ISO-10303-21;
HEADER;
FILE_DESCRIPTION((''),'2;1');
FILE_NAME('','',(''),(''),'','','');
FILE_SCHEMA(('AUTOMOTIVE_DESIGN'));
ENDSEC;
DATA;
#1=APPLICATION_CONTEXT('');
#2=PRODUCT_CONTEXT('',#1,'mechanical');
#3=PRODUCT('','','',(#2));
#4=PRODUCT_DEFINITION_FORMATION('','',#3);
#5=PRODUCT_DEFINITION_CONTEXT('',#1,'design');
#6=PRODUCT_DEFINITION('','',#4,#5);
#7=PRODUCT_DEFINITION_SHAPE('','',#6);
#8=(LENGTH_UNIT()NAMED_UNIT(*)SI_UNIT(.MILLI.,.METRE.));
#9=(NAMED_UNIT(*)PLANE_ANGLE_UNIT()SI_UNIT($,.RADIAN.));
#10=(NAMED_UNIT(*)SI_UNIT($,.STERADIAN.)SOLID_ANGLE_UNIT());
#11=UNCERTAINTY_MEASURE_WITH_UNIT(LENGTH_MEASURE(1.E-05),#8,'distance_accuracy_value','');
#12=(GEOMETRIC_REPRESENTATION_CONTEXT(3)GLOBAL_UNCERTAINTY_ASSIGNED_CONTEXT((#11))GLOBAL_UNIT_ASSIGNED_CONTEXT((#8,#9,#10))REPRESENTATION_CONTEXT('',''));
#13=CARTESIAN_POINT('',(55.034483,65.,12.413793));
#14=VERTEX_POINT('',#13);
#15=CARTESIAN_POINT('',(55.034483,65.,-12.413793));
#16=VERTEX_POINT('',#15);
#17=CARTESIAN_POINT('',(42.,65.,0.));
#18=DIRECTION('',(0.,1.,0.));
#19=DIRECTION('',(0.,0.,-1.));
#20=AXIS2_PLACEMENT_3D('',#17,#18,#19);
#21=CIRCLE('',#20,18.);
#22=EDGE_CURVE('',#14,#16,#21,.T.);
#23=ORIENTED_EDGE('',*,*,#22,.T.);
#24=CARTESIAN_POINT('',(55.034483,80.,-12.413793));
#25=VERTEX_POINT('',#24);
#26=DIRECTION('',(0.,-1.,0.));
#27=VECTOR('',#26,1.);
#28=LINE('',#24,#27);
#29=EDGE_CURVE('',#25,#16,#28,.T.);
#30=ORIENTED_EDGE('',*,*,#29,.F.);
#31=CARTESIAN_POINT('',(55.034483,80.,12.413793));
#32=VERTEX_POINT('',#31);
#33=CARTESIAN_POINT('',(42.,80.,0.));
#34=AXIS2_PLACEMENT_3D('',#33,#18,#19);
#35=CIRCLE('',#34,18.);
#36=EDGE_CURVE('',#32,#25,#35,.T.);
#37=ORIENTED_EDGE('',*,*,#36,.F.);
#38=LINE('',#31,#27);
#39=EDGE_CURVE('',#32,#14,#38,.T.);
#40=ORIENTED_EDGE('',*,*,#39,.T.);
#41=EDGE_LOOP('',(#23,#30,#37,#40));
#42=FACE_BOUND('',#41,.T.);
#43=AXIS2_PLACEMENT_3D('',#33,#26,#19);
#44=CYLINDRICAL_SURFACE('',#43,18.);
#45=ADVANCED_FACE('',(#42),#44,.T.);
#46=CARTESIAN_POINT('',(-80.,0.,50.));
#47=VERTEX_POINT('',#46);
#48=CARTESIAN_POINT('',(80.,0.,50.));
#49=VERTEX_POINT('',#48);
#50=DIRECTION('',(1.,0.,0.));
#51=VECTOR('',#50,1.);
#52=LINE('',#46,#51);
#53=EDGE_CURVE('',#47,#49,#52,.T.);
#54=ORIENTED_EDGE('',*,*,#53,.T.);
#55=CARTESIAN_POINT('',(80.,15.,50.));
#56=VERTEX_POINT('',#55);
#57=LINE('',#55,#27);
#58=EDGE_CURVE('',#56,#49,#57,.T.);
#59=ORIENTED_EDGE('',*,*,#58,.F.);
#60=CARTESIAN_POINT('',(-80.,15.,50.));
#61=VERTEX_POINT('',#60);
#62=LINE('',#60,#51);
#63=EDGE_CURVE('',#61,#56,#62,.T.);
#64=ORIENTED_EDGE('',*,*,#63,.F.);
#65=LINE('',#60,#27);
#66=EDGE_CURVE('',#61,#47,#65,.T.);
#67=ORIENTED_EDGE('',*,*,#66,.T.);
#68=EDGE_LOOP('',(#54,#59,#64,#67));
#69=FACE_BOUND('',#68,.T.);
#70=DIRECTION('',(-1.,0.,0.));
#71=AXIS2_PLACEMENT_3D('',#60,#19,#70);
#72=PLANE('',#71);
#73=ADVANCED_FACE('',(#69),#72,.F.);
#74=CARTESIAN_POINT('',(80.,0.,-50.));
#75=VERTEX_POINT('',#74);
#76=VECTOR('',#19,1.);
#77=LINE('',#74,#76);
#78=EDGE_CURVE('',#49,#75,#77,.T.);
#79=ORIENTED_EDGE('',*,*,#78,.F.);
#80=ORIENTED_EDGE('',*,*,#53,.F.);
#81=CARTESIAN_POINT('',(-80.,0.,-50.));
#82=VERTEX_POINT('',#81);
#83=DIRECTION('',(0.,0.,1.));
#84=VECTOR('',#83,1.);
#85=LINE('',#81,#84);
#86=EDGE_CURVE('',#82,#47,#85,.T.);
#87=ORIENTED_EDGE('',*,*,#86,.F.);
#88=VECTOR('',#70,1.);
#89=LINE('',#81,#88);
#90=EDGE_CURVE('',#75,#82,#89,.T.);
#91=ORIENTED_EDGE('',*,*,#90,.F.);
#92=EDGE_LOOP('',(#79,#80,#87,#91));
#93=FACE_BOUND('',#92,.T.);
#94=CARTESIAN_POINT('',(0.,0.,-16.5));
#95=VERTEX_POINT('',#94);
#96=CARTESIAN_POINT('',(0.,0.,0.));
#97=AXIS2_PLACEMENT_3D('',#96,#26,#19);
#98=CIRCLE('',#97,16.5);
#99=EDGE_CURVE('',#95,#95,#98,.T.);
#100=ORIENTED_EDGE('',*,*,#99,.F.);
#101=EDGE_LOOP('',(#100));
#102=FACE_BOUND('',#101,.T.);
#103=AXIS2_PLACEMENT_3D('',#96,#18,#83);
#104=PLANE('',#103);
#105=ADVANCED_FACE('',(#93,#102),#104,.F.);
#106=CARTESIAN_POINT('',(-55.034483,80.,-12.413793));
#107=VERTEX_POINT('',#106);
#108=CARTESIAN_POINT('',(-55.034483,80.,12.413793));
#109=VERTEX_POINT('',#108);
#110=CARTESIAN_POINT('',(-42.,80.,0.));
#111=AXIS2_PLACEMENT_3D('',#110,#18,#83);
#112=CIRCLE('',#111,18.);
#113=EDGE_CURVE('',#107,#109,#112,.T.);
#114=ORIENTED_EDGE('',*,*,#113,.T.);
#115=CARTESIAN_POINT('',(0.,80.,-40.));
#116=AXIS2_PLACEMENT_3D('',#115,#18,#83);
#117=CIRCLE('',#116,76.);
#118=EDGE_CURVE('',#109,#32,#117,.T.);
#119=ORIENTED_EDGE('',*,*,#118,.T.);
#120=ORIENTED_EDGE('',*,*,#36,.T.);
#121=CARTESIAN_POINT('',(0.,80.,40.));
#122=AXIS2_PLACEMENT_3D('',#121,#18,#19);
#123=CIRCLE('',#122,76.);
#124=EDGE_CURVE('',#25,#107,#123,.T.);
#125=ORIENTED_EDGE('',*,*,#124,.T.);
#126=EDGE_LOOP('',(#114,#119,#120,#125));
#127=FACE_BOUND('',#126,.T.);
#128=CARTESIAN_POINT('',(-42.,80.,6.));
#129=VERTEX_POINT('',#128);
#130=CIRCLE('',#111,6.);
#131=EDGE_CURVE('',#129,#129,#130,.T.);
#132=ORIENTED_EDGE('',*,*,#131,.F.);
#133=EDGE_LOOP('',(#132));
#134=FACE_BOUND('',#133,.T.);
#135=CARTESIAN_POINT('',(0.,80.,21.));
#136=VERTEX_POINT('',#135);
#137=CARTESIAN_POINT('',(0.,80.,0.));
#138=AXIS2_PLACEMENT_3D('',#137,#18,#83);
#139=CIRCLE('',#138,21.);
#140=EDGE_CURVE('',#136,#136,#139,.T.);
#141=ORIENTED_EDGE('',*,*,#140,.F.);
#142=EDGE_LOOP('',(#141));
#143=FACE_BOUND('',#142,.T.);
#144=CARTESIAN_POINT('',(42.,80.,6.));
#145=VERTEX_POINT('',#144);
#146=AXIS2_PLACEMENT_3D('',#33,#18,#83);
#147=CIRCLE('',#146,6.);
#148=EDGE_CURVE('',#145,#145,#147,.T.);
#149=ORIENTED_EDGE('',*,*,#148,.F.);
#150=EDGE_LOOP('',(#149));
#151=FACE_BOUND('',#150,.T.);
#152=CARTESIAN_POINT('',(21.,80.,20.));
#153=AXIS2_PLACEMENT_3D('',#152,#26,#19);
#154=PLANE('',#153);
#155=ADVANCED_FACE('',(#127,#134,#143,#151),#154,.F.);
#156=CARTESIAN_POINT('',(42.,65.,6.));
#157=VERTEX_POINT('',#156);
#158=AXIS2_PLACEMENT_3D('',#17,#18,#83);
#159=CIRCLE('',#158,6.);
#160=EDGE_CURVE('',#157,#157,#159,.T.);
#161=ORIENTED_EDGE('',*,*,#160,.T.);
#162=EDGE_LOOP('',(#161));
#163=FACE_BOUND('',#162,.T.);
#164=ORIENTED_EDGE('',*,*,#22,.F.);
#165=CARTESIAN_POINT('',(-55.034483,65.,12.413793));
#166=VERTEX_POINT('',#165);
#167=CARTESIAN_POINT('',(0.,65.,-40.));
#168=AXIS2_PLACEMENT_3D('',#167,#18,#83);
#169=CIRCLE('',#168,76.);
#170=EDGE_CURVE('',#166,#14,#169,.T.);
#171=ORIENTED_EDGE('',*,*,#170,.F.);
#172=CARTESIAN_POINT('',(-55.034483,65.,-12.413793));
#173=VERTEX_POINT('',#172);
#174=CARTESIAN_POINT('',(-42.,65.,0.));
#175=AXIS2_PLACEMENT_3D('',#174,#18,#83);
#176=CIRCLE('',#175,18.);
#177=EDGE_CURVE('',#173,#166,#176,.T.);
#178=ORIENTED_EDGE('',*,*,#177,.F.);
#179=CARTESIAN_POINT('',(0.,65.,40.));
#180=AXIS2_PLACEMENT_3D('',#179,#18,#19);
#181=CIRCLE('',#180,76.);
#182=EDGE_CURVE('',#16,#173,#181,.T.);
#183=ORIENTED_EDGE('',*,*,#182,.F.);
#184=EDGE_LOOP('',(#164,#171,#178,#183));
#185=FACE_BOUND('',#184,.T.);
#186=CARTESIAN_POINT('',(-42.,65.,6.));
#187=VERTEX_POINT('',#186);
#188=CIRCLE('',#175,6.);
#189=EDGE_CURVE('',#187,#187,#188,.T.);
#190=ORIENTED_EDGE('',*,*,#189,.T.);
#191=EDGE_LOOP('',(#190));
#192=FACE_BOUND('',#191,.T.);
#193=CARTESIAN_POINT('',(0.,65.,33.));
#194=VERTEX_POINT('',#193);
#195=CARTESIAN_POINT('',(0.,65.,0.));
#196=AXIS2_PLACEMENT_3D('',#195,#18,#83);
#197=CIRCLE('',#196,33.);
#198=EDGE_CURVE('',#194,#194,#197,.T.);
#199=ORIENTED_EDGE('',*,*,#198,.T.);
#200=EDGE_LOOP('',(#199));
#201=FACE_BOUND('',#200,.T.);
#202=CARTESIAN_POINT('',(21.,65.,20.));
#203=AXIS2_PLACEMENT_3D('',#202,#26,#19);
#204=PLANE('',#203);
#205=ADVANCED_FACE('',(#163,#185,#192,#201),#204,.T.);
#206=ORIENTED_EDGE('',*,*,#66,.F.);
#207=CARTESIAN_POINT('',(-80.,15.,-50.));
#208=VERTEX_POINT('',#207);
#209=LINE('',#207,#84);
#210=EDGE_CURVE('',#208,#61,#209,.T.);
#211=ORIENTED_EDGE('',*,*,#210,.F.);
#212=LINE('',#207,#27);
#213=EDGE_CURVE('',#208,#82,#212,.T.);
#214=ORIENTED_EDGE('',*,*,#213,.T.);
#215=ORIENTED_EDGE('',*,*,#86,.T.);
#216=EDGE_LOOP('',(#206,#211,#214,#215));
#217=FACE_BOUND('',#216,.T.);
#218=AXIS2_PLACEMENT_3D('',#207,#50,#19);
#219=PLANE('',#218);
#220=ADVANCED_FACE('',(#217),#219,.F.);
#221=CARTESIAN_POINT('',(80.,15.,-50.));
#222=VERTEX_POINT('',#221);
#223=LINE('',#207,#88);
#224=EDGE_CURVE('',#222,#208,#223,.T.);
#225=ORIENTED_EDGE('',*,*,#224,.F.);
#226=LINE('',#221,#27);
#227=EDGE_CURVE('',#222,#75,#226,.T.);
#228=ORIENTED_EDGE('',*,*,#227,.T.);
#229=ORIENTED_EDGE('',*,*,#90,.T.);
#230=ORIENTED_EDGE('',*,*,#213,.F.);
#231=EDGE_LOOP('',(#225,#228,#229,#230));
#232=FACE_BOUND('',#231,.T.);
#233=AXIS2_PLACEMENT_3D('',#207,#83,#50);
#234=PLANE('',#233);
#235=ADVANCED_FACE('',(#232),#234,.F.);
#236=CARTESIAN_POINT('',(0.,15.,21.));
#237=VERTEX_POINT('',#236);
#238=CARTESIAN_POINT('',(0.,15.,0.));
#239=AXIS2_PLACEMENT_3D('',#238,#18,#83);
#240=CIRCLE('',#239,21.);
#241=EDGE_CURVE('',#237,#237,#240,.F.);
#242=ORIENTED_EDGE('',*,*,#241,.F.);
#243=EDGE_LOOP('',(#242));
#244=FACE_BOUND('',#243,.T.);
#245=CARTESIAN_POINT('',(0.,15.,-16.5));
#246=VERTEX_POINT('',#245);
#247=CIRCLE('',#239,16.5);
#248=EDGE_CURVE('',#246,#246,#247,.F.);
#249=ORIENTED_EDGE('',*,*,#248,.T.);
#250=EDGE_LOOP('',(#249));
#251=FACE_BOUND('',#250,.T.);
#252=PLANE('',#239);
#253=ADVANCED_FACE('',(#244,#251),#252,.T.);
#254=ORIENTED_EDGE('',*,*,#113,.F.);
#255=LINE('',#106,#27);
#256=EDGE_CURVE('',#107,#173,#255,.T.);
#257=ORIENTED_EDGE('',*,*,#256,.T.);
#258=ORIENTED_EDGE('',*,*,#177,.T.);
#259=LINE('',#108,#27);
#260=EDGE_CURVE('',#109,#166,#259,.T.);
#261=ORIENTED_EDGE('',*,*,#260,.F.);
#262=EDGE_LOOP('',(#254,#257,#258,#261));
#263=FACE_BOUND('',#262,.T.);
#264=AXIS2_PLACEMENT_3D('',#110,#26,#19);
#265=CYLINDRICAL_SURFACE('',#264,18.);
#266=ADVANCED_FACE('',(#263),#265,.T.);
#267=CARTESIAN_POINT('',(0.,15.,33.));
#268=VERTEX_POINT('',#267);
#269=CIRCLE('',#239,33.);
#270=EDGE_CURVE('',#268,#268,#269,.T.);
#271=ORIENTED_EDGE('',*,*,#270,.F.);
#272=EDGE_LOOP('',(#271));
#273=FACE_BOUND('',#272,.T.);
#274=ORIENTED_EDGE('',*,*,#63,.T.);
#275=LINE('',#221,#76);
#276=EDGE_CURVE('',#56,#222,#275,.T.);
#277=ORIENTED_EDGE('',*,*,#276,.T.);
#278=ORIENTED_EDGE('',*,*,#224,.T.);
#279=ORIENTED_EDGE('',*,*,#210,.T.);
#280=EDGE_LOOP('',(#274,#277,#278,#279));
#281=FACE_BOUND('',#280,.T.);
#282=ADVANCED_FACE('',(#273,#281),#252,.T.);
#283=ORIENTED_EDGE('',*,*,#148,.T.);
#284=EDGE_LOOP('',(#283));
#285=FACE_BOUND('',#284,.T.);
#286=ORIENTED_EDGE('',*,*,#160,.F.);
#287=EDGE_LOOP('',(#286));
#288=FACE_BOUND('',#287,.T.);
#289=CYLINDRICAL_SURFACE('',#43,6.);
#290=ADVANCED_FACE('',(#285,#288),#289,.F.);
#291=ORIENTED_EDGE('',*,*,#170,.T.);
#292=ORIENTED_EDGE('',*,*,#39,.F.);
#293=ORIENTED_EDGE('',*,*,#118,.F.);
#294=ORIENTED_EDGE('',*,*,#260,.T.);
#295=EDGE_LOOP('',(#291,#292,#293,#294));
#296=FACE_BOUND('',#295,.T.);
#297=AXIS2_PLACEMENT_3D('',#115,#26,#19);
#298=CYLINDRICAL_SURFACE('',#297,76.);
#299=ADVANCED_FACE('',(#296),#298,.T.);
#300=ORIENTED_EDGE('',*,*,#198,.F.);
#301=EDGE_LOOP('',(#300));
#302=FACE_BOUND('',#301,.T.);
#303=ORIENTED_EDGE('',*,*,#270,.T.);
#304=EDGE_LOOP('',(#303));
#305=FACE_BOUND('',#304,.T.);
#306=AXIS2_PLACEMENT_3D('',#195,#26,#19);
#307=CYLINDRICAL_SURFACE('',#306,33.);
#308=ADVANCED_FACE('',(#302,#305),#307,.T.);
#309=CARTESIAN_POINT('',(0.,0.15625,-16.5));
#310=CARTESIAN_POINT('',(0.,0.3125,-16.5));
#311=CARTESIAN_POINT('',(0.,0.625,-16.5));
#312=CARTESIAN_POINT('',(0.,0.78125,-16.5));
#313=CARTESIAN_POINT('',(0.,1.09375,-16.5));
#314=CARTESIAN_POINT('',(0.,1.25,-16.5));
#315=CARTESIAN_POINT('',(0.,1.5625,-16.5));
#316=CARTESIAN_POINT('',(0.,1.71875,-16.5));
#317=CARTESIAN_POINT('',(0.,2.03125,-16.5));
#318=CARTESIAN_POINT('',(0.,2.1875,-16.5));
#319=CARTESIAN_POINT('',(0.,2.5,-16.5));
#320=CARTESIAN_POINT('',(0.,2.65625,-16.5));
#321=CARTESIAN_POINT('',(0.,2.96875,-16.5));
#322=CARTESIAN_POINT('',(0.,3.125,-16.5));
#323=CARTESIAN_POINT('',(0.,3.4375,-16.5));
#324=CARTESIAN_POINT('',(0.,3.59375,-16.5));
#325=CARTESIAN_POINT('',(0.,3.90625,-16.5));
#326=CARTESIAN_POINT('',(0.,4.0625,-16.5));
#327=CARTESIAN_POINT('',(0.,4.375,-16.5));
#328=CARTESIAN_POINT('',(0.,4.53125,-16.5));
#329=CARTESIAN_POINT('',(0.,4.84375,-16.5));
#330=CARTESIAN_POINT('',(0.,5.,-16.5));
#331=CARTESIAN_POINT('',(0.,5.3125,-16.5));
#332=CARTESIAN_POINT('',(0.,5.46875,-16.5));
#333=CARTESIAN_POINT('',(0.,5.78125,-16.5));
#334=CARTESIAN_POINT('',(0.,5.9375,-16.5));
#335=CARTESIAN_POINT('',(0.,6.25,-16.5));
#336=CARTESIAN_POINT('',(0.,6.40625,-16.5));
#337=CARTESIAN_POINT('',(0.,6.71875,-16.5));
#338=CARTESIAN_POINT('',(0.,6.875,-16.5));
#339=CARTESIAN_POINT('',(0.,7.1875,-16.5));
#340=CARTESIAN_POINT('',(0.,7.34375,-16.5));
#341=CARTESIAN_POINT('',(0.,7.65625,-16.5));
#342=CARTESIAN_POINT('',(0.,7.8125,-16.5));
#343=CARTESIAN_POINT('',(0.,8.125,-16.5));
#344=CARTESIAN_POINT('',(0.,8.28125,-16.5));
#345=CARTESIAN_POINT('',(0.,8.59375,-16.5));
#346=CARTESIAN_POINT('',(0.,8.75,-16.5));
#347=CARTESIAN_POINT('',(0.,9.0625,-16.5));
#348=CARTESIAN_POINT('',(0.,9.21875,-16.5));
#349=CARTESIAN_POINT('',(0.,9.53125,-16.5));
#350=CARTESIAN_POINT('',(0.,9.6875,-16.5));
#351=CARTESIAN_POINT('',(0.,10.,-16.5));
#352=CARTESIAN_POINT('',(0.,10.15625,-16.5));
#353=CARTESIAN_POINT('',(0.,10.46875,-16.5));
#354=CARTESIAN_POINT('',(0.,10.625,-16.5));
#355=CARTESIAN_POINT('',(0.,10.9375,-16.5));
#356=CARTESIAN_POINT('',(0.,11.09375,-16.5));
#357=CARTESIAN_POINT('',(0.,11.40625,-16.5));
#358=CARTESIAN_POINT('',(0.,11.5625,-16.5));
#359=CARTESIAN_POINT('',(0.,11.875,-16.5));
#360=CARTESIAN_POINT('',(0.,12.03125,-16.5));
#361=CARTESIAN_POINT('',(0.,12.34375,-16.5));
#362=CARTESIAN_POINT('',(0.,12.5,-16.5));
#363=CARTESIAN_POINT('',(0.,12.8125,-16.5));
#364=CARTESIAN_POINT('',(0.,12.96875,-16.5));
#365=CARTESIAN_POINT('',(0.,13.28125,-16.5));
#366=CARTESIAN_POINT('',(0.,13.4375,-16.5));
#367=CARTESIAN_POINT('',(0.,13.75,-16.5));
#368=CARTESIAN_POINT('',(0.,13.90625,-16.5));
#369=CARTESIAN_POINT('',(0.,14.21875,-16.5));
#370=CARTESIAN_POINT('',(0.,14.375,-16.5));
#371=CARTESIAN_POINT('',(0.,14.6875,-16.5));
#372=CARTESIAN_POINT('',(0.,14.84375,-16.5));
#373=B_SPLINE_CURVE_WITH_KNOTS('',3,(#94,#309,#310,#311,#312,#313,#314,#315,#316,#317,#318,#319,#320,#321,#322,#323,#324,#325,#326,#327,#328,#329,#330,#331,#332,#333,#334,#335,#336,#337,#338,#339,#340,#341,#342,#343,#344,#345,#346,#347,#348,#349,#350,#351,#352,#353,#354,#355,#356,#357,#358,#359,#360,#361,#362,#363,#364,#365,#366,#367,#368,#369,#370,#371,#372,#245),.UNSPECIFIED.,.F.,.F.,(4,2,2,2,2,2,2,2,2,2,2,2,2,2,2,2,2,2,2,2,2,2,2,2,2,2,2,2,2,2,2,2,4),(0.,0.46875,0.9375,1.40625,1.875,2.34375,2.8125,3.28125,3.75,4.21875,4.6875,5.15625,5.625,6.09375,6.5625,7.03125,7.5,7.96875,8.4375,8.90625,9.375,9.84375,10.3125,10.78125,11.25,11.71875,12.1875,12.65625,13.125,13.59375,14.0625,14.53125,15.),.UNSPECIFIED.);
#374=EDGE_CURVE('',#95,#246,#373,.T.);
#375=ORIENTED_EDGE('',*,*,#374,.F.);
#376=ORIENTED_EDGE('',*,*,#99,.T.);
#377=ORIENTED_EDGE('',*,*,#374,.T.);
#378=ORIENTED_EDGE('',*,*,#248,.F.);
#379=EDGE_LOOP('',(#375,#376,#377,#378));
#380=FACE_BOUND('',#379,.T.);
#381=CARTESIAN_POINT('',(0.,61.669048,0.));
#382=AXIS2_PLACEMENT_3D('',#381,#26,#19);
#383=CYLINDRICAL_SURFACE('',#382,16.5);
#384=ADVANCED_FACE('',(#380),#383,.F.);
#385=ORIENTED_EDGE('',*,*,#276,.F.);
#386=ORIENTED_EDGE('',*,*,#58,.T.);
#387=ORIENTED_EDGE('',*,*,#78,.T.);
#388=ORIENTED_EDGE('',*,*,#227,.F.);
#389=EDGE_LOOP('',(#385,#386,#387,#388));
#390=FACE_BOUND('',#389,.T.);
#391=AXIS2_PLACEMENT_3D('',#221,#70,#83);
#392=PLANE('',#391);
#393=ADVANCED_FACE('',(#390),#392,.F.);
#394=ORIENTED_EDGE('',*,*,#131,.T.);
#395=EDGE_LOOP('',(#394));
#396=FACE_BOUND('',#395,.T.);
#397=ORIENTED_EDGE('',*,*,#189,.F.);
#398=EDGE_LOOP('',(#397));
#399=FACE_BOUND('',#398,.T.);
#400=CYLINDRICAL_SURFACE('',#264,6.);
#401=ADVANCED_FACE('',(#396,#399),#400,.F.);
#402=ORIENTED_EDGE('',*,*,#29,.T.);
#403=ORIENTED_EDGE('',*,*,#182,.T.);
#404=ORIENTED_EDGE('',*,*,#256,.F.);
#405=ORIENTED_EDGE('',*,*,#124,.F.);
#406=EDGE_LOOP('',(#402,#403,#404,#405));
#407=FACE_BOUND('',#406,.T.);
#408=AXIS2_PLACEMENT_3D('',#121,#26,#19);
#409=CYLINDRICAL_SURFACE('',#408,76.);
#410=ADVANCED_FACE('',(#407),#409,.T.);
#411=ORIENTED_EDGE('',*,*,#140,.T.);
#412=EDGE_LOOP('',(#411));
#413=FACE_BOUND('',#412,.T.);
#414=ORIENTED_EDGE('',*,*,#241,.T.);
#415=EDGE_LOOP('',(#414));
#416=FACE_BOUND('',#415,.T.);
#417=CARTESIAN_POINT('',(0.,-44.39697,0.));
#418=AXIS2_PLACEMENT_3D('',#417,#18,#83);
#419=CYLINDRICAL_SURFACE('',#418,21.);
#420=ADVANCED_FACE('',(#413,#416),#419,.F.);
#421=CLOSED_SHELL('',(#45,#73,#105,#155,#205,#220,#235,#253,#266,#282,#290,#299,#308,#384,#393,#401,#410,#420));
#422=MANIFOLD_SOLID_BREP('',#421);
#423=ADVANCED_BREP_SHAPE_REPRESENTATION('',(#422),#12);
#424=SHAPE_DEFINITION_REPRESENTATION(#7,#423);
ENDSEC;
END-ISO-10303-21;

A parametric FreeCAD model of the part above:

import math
import FreeCAD as App
import Part
import Sketcher
from FreeCAD import Vector

doc = App.newDocument("Part")
body = doc.addObject("PartDesign::Body", "Body")

sketch1 = body.newObject("Sketcher::SketchObject", "Sketch")
sketch1.AttachmentSupport = (doc.getObject("XZ_Plane"), [""])
sketch1.MapMode = "FlatFace"
sketch1.addGeometry(Part.LineSegment(Vector(-80, -50, 0), Vector(-80, 50, 0)), False)
sketch1.addGeometry(Part.LineSegment(Vector(-80, 50, 0), Vector(80, 50, 0)), False)
sketch1.addGeometry(Part.LineSegment(Vector(80, 50, 0), Vector(80, -50, 0)), False)
sketch1.addGeometry(Part.LineSegment(Vector(80, -50, 0), Vector(-80, -50, 0)), False)
sketch1.addConstraint(Sketcher.Constraint("Coincident", 0, 2, 1, 1))
sketch1.addConstraint(Sketcher.Constraint("Coincident", 1, 2, 2, 1))
sketch1.addConstraint(Sketcher.Constraint("Coincident", 2, 2, 3, 1))
sketch1.addConstraint(Sketcher.Constraint("Coincident", 3, 2, 0, 1))
sketch1.addConstraint(Sketcher.Constraint("Vertical", 0))
sketch1.addConstraint(Sketcher.Constraint("Horizontal", 1))
sketch1.addConstraint(Sketcher.Constraint("Vertical", 2))
sketch1.addConstraint(Sketcher.Constraint("Horizontal", 3))
sketch1.addConstraint(Sketcher.Constraint("Symmetric", 0, 2, 2, 2, -1, 1))
sketch1.addConstraint(Sketcher.Constraint("DistanceX", 1, 1, 1, 2, 160.0))
sketch1.addConstraint(Sketcher.Constraint("DistanceY", 0, 1, 0, 2, 100.0))
pad1 = body.newObject("PartDesign::Pad", "Pad")
pad1.Profile = sketch1
pad1.Length = 15
pad1.Reversed = True

sketch2 = body.newObject("Sketcher::SketchObject", "Sketch001")
sketch2.AttachmentSupport = (doc.getObject("XZ_Plane"), [""])
sketch2.MapMode = "FlatFace"
sketch2.addGeometry(Part.Circle(Vector(0, 0, 0), Vector(0, 0, 1), 16.5), False)
sketch2.addConstraint(Sketcher.Constraint("Coincident", 0, 3, -1, 1))
sketch2.addConstraint(Sketcher.Constraint("Diameter", 0, 33.0))
pocket1 = body.newObject("PartDesign::Pocket", "Pocket")
pocket1.Profile = sketch2
pocket1.Length = 15

sketch3 = body.newObject("Sketcher::SketchObject", "Sketch002")
sketch3.AttachmentSupport = (doc.getObject("XZ_Plane"), [""])
sketch3.MapMode = "FlatFace"
sketch3.AttachmentOffset = App.Placement(Vector(0, 0, -15), App.Rotation())
sketch3.addGeometry(Part.Circle(Vector(0, 0, 0), Vector(0, 0, 1), 33), False)
sketch3.addConstraint(Sketcher.Constraint("Coincident", 0, 3, -1, 1))
sketch3.addConstraint(Sketcher.Constraint("Diameter", 0, 66.0))
pad2 = body.newObject("PartDesign::Pad", "Pad001")
pad2.Profile = sketch3
pad2.Length = 50
pad2.Reversed = True

sketch4 = body.newObject("Sketcher::SketchObject", "Sketch003")
sketch4.AttachmentSupport = (doc.getObject("XZ_Plane"), [""])
sketch4.MapMode = "FlatFace"
sketch4.AttachmentOffset = App.Placement(Vector(0, 0, -65), App.Rotation())
sketch4.addGeometry(Part.ArcOfCircle(Part.Circle(Vector(-42, 0, 0), Vector(0, 0, 1), 18), math.radians(136.397181), math.radians(223.602819)), False)
sketch4.addGeometry(Part.ArcOfCircle(Part.Circle(Vector(0, -40, 0), Vector(0, 0, 1), 76), math.radians(43.602819), math.radians(136.397181)), False)
sketch4.addGeometry(Part.ArcOfCircle(Part.Circle(Vector(42, 0, 0), Vector(0, 0, 1), 18), math.radians(-43.602819), math.radians(43.602819)), False)
sketch4.addGeometry(Part.ArcOfCircle(Part.Circle(Vector(0, 40, 0), Vector(0, 0, 1), 76), math.radians(-136.397181), math.radians(-43.602819)), False)
sketch4.addGeometry(Part.Circle(Vector(-42, 0, 0), Vector(0, 0, 1), 6), False)
sketch4.addGeometry(Part.Circle(Vector(42, 0, 0), Vector(0, 0, 1), 6), False)
sketch4.addConstraint(Sketcher.Constraint("Tangent", 0, 1, 1, 2))
sketch4.addConstraint(Sketcher.Constraint("Tangent", 1, 1, 2, 2))
sketch4.addConstraint(Sketcher.Constraint("Tangent", 2, 1, 3, 2))
sketch4.addConstraint(Sketcher.Constraint("Tangent", 3, 1, 0, 2))
sketch4.addConstraint(Sketcher.Constraint("Coincident", 4, 3, 0, 3))
sketch4.addConstraint(Sketcher.Constraint("Coincident", 5, 3, 2, 3))
sketch4.addConstraint(Sketcher.Constraint("Equal", 0, 2))
sketch4.addConstraint(Sketcher.Constraint("Equal", 1, 3))
sketch4.addConstraint(Sketcher.Constraint("Equal", 4, 5))
sketch4.addConstraint(Sketcher.Constraint("Symmetric", 0, 3, 2, 3, -1, 1))
sketch4.addConstraint(Sketcher.Constraint("PointOnObject", 0, 3, -1))
sketch4.addConstraint(Sketcher.Constraint("Diameter", 4, 12.0))
sketch4.addConstraint(Sketcher.Constraint("Radius", 0, 18.0))
sketch4.addConstraint(Sketcher.Constraint("Radius", 1, 76.0))
sketch4.addConstraint(Sketcher.Constraint("DistanceX", 0, 3, -1, 1, 42.0))
pad3 = body.newObject("PartDesign::Pad", "Pad002")
pad3.Profile = sketch4
pad3.Length = 15
pad3.Reversed = True

sketch5 = body.newObject("Sketcher::SketchObject", "Sketch004")
sketch5.AttachmentSupport = (doc.getObject("XZ_Plane"), [""])
sketch5.MapMode = "FlatFace"
sketch5.AttachmentOffset = App.Placement(Vector(0, 0, -80), App.Rotation())
sketch5.addGeometry(Part.Circle(Vector(0, 0, 0), Vector(0, 0, 1), 21), False)
sketch5.addConstraint(Sketcher.Constraint("Coincident", 0, 3, -1, 1))
sketch5.addConstraint(Sketcher.Constraint("Diameter", 0, 42.0))
pocket2 = body.newObject("PartDesign::Pocket", "Pocket001")
pocket2.Profile = sketch5
pocket2.Length = 65
pocket2.Reversed = True

doc.recompute()
